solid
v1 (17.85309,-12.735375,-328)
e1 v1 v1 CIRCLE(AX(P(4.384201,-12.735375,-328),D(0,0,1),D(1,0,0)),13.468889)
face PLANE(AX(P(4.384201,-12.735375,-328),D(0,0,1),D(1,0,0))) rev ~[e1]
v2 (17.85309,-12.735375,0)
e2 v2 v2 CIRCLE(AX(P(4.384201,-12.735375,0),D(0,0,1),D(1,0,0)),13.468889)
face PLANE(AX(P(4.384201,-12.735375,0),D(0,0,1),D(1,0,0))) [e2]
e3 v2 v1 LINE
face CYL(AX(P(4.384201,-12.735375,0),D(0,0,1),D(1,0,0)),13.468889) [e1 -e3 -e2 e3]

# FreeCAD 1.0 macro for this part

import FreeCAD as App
import Part
import Sketcher

V = App.Vector

doc = App.newDocument("Part")
body = doc.addObject("PartDesign::Body", "Body")

# Sketch on XY plane
sketch1 = body.newObject("Sketcher::SketchObject", "Sketch")
sketch1.AttachmentSupport = (doc.getObject("XY_Plane"), [""])
sketch1.MapMode = "FlatFace"
sketch1.addGeometry(Part.Circle(V(4, -13, 0), V(0, 0, 1), 13), False)
sketch1.addConstraint([
    Sketcher.Constraint("Diameter", 0, 26.937778),
    Sketcher.Constraint("DistanceX", -1, 1, 0, 3, 4.384201),
    Sketcher.Constraint("DistanceY", 0, 3, -1, 1, 12.735375),
])
pad1 = body.newObject("PartDesign::Pad", "Pad")
pad1.Profile = sketch1
pad1.Length = 328
pad1.Reversed = True

doc.recompute()
